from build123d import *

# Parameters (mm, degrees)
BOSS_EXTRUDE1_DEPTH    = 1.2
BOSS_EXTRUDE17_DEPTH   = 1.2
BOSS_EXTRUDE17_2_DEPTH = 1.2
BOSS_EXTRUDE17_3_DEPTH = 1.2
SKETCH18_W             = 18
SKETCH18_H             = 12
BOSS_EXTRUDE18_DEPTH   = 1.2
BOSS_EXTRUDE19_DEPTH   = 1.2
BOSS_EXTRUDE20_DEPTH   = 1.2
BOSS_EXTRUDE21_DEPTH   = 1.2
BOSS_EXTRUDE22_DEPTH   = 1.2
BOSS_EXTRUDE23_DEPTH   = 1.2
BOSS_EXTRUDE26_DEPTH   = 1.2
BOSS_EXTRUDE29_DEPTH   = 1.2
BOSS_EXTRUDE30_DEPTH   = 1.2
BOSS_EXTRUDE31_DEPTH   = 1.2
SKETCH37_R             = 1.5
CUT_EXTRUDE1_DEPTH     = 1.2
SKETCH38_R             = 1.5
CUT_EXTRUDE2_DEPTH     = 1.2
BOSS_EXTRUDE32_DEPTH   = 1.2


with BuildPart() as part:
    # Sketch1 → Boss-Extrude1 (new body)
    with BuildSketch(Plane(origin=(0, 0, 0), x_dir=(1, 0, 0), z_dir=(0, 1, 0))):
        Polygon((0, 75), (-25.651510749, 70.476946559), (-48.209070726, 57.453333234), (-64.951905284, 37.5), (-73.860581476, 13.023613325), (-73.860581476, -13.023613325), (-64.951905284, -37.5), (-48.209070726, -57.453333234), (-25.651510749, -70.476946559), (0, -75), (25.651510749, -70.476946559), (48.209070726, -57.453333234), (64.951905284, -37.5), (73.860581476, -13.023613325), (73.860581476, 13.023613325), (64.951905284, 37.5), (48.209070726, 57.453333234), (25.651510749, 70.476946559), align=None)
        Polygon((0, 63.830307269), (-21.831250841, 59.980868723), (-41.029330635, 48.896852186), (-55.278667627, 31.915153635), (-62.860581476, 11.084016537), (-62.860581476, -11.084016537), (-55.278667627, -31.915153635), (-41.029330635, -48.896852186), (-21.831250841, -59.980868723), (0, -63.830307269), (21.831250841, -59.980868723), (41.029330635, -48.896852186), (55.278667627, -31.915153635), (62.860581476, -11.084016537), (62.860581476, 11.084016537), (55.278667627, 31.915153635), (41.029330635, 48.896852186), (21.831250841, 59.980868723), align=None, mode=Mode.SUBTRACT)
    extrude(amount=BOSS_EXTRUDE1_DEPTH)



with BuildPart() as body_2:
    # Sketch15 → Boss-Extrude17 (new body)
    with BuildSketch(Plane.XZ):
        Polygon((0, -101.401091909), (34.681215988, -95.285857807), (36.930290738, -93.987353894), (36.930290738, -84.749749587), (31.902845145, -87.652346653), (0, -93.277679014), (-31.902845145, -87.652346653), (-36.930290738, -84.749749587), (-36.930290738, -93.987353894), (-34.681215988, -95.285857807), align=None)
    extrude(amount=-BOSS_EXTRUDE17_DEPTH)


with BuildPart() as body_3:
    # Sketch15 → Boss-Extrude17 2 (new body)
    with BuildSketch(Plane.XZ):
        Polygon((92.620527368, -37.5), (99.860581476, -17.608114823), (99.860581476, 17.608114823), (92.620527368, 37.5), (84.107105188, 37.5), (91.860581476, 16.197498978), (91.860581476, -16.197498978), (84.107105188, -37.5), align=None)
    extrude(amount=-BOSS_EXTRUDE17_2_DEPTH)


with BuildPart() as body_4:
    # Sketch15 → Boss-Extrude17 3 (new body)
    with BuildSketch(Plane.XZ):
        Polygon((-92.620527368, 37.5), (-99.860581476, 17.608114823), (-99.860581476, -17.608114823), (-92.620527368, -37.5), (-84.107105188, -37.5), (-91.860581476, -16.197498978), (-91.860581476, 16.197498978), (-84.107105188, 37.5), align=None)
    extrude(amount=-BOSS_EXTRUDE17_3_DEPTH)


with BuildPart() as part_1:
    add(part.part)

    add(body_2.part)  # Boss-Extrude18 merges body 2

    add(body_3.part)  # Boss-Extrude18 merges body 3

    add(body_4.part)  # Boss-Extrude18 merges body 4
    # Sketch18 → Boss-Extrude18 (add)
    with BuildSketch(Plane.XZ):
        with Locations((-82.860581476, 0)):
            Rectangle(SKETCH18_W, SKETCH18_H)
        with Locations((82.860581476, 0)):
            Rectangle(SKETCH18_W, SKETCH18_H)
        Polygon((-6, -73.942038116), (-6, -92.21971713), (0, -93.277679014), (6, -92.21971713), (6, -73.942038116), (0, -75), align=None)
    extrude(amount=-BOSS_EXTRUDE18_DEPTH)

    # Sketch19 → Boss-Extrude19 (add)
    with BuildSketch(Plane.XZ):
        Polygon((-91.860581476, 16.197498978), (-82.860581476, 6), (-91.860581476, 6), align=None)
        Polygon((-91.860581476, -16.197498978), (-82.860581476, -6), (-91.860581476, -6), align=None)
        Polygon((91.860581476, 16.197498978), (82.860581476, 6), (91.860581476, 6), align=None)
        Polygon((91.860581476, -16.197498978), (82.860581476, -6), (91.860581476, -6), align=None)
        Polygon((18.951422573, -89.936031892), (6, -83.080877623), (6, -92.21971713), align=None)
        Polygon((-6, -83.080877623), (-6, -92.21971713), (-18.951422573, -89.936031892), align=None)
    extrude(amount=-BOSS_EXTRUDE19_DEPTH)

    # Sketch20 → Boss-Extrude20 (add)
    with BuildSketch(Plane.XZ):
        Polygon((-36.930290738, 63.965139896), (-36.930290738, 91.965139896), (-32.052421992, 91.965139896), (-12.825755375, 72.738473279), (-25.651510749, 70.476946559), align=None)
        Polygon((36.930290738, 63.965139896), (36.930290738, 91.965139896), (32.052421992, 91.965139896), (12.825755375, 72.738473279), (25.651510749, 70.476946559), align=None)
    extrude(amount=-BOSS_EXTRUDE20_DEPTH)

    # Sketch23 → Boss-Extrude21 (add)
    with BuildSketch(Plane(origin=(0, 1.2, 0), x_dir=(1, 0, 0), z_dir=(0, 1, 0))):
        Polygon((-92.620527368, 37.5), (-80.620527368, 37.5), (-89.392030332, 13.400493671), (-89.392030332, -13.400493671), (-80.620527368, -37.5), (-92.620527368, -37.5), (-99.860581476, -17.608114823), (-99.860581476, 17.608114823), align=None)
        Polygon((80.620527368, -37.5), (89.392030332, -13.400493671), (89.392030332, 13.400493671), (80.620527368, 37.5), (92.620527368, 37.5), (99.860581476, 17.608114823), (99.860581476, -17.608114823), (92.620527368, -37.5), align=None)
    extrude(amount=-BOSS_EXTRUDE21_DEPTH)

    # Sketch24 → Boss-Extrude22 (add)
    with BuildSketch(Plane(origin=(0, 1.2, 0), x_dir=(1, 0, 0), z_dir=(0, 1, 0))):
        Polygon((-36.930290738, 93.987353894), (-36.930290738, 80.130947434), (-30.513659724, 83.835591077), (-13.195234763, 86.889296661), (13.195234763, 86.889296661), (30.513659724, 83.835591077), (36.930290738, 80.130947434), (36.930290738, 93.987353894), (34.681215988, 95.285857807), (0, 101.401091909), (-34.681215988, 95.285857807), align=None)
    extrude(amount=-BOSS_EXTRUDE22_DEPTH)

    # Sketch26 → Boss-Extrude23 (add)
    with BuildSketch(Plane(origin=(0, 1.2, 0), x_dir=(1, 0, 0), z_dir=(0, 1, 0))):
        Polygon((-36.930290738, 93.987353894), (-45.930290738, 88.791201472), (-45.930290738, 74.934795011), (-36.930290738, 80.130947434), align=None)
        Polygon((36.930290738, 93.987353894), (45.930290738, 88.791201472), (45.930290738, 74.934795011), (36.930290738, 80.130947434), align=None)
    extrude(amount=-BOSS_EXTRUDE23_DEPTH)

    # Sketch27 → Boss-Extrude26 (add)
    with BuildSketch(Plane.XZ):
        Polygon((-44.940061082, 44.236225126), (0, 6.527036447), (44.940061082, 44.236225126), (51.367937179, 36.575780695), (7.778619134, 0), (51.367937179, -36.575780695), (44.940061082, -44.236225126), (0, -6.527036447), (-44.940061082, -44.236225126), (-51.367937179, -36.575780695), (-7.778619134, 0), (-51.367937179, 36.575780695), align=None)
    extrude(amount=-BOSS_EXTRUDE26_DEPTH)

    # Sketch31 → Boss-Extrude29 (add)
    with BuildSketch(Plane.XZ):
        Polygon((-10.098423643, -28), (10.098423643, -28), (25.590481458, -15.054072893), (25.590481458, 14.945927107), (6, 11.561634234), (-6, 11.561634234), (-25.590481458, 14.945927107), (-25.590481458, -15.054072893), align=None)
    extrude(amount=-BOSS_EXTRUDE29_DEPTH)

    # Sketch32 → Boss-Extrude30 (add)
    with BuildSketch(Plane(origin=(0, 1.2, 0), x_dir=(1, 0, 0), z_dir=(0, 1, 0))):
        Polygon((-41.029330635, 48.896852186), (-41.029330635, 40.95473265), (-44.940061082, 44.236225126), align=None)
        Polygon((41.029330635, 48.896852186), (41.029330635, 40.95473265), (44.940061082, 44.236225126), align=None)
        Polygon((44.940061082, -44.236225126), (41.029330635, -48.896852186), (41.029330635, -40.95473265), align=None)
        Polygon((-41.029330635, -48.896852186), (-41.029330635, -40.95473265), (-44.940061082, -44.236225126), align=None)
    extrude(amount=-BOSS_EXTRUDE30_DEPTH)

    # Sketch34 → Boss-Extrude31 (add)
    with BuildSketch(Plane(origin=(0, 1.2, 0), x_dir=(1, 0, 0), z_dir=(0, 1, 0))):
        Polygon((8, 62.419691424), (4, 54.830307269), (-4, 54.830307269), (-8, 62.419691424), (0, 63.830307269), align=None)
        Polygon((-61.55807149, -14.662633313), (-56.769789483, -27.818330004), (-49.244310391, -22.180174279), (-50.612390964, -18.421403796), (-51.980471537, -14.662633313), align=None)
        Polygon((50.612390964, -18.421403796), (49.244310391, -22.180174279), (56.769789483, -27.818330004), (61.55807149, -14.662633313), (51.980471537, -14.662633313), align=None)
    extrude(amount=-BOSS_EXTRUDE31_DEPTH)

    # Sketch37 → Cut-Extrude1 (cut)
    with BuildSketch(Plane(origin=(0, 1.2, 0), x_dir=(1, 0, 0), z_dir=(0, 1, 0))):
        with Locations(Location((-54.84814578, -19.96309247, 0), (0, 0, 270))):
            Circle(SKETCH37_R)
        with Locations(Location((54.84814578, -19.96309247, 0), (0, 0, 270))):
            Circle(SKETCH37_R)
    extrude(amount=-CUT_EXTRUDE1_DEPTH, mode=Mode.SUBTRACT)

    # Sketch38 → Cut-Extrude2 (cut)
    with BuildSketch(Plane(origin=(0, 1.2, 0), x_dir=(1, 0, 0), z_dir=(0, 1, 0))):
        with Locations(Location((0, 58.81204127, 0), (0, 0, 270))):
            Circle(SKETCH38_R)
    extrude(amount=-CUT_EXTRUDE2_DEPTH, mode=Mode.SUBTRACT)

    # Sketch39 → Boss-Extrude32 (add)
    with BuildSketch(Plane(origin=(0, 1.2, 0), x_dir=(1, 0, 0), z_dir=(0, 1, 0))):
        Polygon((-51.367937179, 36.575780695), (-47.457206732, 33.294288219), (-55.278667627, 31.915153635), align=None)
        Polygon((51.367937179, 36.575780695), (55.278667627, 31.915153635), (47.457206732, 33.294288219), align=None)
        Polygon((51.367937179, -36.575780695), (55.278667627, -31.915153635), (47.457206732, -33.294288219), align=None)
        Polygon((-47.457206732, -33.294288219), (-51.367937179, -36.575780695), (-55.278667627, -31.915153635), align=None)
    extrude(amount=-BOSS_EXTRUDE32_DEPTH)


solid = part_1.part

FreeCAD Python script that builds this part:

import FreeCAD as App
import Part
import Sketcher
Q = App.Units.Quantity


def add_polygon(sketch, points):
    """Adds a closed chain of lines whose ends are joined by coincident constraints."""
    first, n = sketch.GeometryCount, len(points)
    for a, b in zip(points, points[1:] + points[:1]):
        sketch.addGeometry(Part.LineSegment(App.Vector(*a, 0), App.Vector(*b, 0)), False)
    for i in range(n):
        sketch.addConstraint(Sketcher.Constraint("Coincident", first + i, 2, first + (i + 1) % n, 1))

doc = App.newDocument("Part")
body = doc.addObject("PartDesign::Body", "Body")

# Sketch on XZ plane
sketch1 = body.newObject("Sketcher::SketchObject", "Sketch")
sketch1.AttachmentSupport = (doc.getObject("XZ_Plane"), [""])
sketch1.MapMode = "FlatFace"
add_polygon(sketch1, [(0, -75), (-26, -70), (-48, -57), (-65, -38), (-74, -13), (-74, 13), (-65, 38), (-48, 57), (-26, 70), (0, 75), (26, 70), (48, 57), (65, 38), (74, 13), (74, -13), (65, -38), (48, -57), (26, -70)])  # lines 0-17
add_polygon(sketch1, [(-22, -60), (0, -64), (22, -60), (41, -49), (55, -32), (63, -11), (63, 11), (55, 32), (41, 49), (22, 60), (0, 64), (-22, 60), (-41, 49), (-55, 32), (-63, 11), (-63, -11), (-55, -32), (-41, -49)])  # lines 18-35
sketch1.addConstraint([
    Sketcher.Constraint("Vertical", 4),
    Sketcher.Constraint("Vertical", 13),
    Sketcher.Constraint("Vertical", 23),
    Sketcher.Constraint("Vertical", 32),
    Sketcher.Constraint("Symmetric", 0, 2, 9, 2, -1, 1),
    Sketcher.Constraint("Symmetric", 1, 2, 10, 2, -1, 1),
    Sketcher.Constraint("Symmetric", 2, 2, 11, 2, -1, 1),
    Sketcher.Constraint("Symmetric", 3, 2, 12, 2, -1, 1),
    Sketcher.Constraint("Symmetric", 5, 2, 14, 2, -1, 1),
    Sketcher.Constraint("Symmetric", 6, 2, 15, 2, -1, 1),
    Sketcher.Constraint("Symmetric", 7, 2, 16, 2, -1, 1),
    Sketcher.Constraint("Symmetric", 8, 2, 17, 2, -1, 1),
    Sketcher.Constraint("Symmetric", 18, 2, 27, 2, -1, 1),
    Sketcher.Constraint("Symmetric", 19, 2, 28, 2, -1, 1),
    Sketcher.Constraint("Symmetric", 20, 2, 29, 2, -1, 1),
    Sketcher.Constraint("Symmetric", 21, 2, 30, 2, -1, 1),
    Sketcher.Constraint("Symmetric", 22, 2, 31, 2, -1, 1),
    Sketcher.Constraint("Symmetric", 24, 2, 33, 2, -1, 1),
    Sketcher.Constraint("Symmetric", 25, 2, 34, 2, -1, 1),
    Sketcher.Constraint("Symmetric", 26, 2, 35, 2, -1, 1),
    Sketcher.Constraint("Symmetric", 7, 2, 9, 2, -2),
    Sketcher.Constraint("Symmetric", 6, 2, 10, 2, -2),
    Sketcher.Constraint("Symmetric", 5, 2, 11, 2, -2),
    Sketcher.Constraint("Symmetric", 26, 2, 28, 2, -2),
    Sketcher.Constraint("Symmetric", 25, 2, 29, 2, -2),
    Sketcher.Constraint("Symmetric", 24, 2, 30, 2, -2),
    Sketcher.Constraint("PointOnObject", 8, 2, -2),
    Sketcher.Constraint("PointOnObject", 18, 2, -2),
    Sketcher.Constraint("Parallel", 5, 14),
    Sketcher.Constraint("Parallel", 9, 18),
    Sketcher.Constraint("Parallel", 16, 20),
    Sketcher.Constraint("Parallel", 15, 21),
    Sketcher.Constraint("Parallel", 14, 22),
    Sketcher.Constraint("Parallel", 12, 24),
    Sketcher.Constraint("Parallel", 24, 33),
    Sketcher.Constraint("Horizontal", 4, 2, 12, 2),
    Sketcher.Constraint("Equal", 0, 1),
    Sketcher.Constraint("Equal", 1, 2),
    Sketcher.Constraint("Equal", 2, 3),
    Sketcher.Constraint("Equal", 19, 20),
    Sketcher.Constraint("Equal", 20, 21),
    Sketcher.Constraint("Equal", 21, 22),
    Sketcher.Constraint("Angle", 0, Q("170 deg")),
    Sketcher.Constraint("Angle", 1, Q("150 deg")),
    Sketcher.Constraint("Angle", 2, Q("130 deg")),
    Sketcher.Constraint("Angle", 3, Q("110 deg")),
    Sketcher.Constraint("DistanceY", -1, 1, 8, 2, Q("75 mm")),
    Sketcher.Constraint("DistanceY", 2, 2, 5, 2, Q("75 mm")),
    Sketcher.Constraint("DistanceX", 22, 2, 13, 2, Q("11 mm")),
    Sketcher.Constraint("DistanceY", 23, 1, 23, 2, Q("22.168033 mm")),
])
pad1 = body.newObject("PartDesign::Pad", "Pad")
pad1.Profile = sketch1
pad1.Length = 1.2
pad1.Reversed = True
body2 = doc.addObject("PartDesign::Body", "Body001")

# Sketch on XZ plane
sketch2 = body2.newObject("Sketcher::SketchObject", "Sketch001")
sketch2.AttachmentSupport = (doc.getObject("XZ_Plane001"), [""])
sketch2.MapMode = "FlatFace"
add_polygon(sketch2, [(0, -101.4), (34.7, -95.3), (36.9, -94), (36.9, -84.7), (31.9, -87.7), (0, -93.3), (-31.9, -87.7), (-36.9, -84.7), (-36.9, -94), (-34.7, -95.3)])  # lines 0-9
sketch2.addConstraint([
    Sketcher.Constraint("Vertical", 2),
    Sketcher.Constraint("Vertical", 7),
    Sketcher.Constraint("Symmetric", 3, 2, 5, 2, -2),
    Sketcher.Constraint("Symmetric", 2, 2, 6, 2, -2),
    Sketcher.Constraint("Symmetric", 0, 2, 8, 2, -2),
    Sketcher.Constraint("PointOnObject", 4, 2, -2),
    Sketcher.Constraint("PointOnObject", 9, 2, -2),
    Sketcher.Constraint("Parallel", 1, 3),
    Sketcher.Constraint("Parallel", 0, 4),
    Sketcher.Constraint("Parallel", 6, 8),
    Sketcher.Constraint("Angle", 0, Q("10 deg")),
    Sketcher.Constraint("Angle", 1, Q("30 deg")),
    Sketcher.Constraint("Distance", 0, Q("35.21623 mm")),
    Sketcher.Constraint("DistanceY", 2, 1, 2, 2, Q("9.237604 mm")),
    Sketcher.Constraint("DistanceX", -1, 1, 1, 2, Q("36.930291 mm")),
    Sketcher.Constraint("DistanceY", 2, 2, -1, 1, Q("84.74975 mm")),
    Sketcher.Constraint("DistanceY", 4, 2, -1, 1, Q("93.277679 mm")),
])
pad2 = body2.newObject("PartDesign::Pad", "Pad001")
pad2.Profile = sketch2
pad2.Length = 1.2
pad2.Reversed = True
body3 = doc.addObject("PartDesign::Body", "Body002")

# Sketch on XZ plane
sketch3 = body3.newObject("Sketcher::SketchObject", "Sketch002")
sketch3.AttachmentSupport = (doc.getObject("XZ_Plane002"), [""])
sketch3.MapMode = "FlatFace"
add_polygon(sketch3, [(93, -38), (100, -18), (100, 18), (93, 38), (84, 38), (92, 16), (92, -16), (84, -38)])  # lines 0-7
sketch3.addConstraint([
    Sketcher.Constraint("Vertical", 1),
    Sketcher.Constraint("Horizontal", 3),
    Sketcher.Constraint("Vertical", 5),
    Sketcher.Constraint("Horizontal", 7),
    Sketcher.Constraint("Symmetric", 3, 2, 6, 2, -1),
    Sketcher.Constraint("Parallel", 2, 4),
    Sketcher.Constraint("Parallel", 0, 6),
    Sketcher.Constraint("Vertical", 2, 2, 7, 2),
    Sketcher.Constraint("Equal", 0, 2),
    Sketcher.Constraint("Angle", 0, Q("70 deg")),
    Sketcher.Constraint("DistanceX", 4, 2, 1, 2, Q("8 mm")),
    Sketcher.Constraint("DistanceY", 6, 2, 3, 2, Q("75 mm")),
    Sketcher.Constraint("DistanceY", 1, 1, 1, 2, Q("35.21623 mm")),
    Sketcher.Constraint("DistanceY", -1, 1, 4, 2, Q("16.197499 mm")),
    Sketcher.Constraint("DistanceX", -1, 1, 0, 2, Q("99.860581 mm")),
])
pad3 = body3.newObject("PartDesign::Pad", "Pad002")
pad3.Profile = sketch3
pad3.Length = 1.2
pad3.Reversed = True
body4 = doc.addObject("PartDesign::Body", "Body003")

# Sketch on XZ plane
sketch4 = body4.newObject("Sketcher::SketchObject", "Sketch003")
sketch4.AttachmentSupport = (doc.getObject("XZ_Plane003"), [""])
sketch4.MapMode = "FlatFace"
add_polygon(sketch4, [(-93, 38), (-100, 18), (-100, -18), (-93, -38), (-84, -38), (-92, -16), (-92, 16), (-84, 38)])  # lines 0-7
sketch4.addConstraint([
    Sketcher.Constraint("Vertical", 1),
    Sketcher.Constraint("Horizontal", 3),
    Sketcher.Constraint("Vertical", 5),
    Sketcher.Constraint("Horizontal", 7),
    Sketcher.Constraint("Symmetric", 3, 2, 6, 2, -1),
    Sketcher.Constraint("Parallel", 2, 4),
    Sketcher.Constraint("Parallel", 0, 6),
    Sketcher.Constraint("Vertical", 2, 2, 7, 2),
    Sketcher.Constraint("Equal", 0, 2),
    Sketcher.Constraint("Angle", 0, Q("-110 deg")),
    Sketcher.Constraint("DistanceX", 1, 2, 4, 2, Q("8 mm")),
    Sketcher.Constraint("DistanceY", 3, 2, 6, 2, Q("75 mm")),
    Sketcher.Constraint("DistanceY", 1, 2, 1, 1, Q("35.21623 mm")),
    Sketcher.Constraint("DistanceY", 4, 2, -1, 1, Q("16.197499 mm")),
    Sketcher.Constraint("DistanceX", 0, 2, -1, 1, Q("99.860581 mm")),
])
pad4 = body4.newObject("PartDesign::Pad", "Pad003")
pad4.Profile = sketch4
pad4.Length = 1.2
pad4.Reversed = True
body.AllowCompound = True
doc.recompute()

boolean = body.newObject("PartDesign::Boolean", "Boolean")
boolean.Type = "Fuse"
boolean.addObjects([body2])
doc.recompute()

boolean2 = body.newObject("PartDesign::Boolean", "Boolean001")
boolean2.Type = "Fuse"
boolean2.addObjects([body3])
doc.recompute()

boolean3 = body.newObject("PartDesign::Boolean", "Boolean002")
boolean3.Type = "Fuse"
boolean3.addObjects([body4])

# Sketch on XZ plane
sketch5 = body.newObject("Sketcher::SketchObject", "Sketch004")
sketch5.AttachmentSupport = (doc.getObject("XZ_Plane"), [""])
sketch5.MapMode = "FlatFace"
add_polygon(sketch5, [(-92, 6), (-92, -6), (-74, -6), (-74, 6)])  # lines 0-3
add_polygon(sketch5, [(74, 6), (74, -6), (92, -6), (92, 6)])  # lines 4-7
add_polygon(sketch5, [(-6, -74), (-6, -92), (0, -93), (6, -92), (6, -74), (0, -75)])  # lines 8-13
sketch5.addConstraint([
    Sketcher.Constraint("Vertical", 0),
    Sketcher.Constraint("Horizontal", 1),
    Sketcher.Constraint("Vertical", 2),
    Sketcher.Constraint("Horizontal", 3),
    Sketcher.Constraint("Vertical", 4),
    Sketcher.Constraint("Horizontal", 5),
    Sketcher.Constraint("Vertical", 6),
    Sketcher.Constraint("Horizontal", 7),
    Sketcher.Constraint("Vertical", 8),
    Sketcher.Constraint("Vertical", 11),
    Sketcher.Constraint("Symmetric", 2, 2, 4, 2, -1, 1),
    Sketcher.Constraint("Symmetric", 0, 2, 6, 2, -1, 1),
    Sketcher.Constraint("Symmetric", 8, 2, 10, 2, -2),
    Sketcher.Constraint("PointOnObject", 9, 2, -2),
    Sketcher.Constraint("PointOnObject", 12, 2, -2),
    Sketcher.Constraint("Parallel", 10, 12),
    Sketcher.Constraint("Parallel", 9, 13),
    Sketcher.Constraint("Horizontal", 1, 2, 4, 2),
    Sketcher.Constraint("DistanceX", 1, 1, 1, 2, Q("18 mm")),
    Sketcher.Constraint("DistanceY", 0, 2, 0, 1, Q("12 mm")),
    Sketcher.Constraint("Angle", 9, Q("-10 deg")),
    Sketcher.Constraint("DistanceX", 8, 2, -1, 1, Q("6 mm")),
    Sketcher.Constraint("DistanceY", 12, 2, -1, 1, Q("75 mm")),
    Sketcher.Constraint("DistanceY", 8, 2, 8, 1, Q("18.277679 mm")),
    Sketcher.Constraint("DistanceX", 0, 2, -1, 1, Q("91.860581 mm")),
])
pad5 = body.newObject("PartDesign::Pad", "Pad004")
pad5.Profile = sketch5
pad5.Length = 1.2
pad5.Reversed = True

# Sketch on XZ plane
sketch6 = body.newObject("Sketcher::SketchObject", "Sketch005")
sketch6.AttachmentSupport = (doc.getObject("XZ_Plane"), [""])
sketch6.MapMode = "FlatFace"
add_polygon(sketch6, [(-83, 6), (-92, 16), (-92, 6)])  # lines 0-2
add_polygon(sketch6, [(-92, -16), (-83, -6), (-92, -6)])  # lines 3-5
add_polygon(sketch6, [(92, 16), (83, 6), (92, 6)])  # lines 6-8
add_polygon(sketch6, [(83, -6), (92, -16), (92, -6)])  # lines 9-11
add_polygon(sketch6, [(19, -90), (6, -83), (6, -92)])  # lines 12-14
add_polygon(sketch6, [(-6, -92), (-6, -83), (-19, -90)])  # lines 15-17
sketch6.addConstraint([
    Sketcher.Constraint("Vertical", 1),
    Sketcher.Constraint("Horizontal", 2),
    Sketcher.Constraint("Horizontal", 4),
    Sketcher.Constraint("Vertical", 5),
    Sketcher.Constraint("Horizontal", 7),
    Sketcher.Constraint("Vertical", 8),
    Sketcher.Constraint("Vertical", 10),
    Sketcher.Constraint("Horizontal", 11),
    Sketcher.Constraint("Vertical", 13),
    Sketcher.Constraint("Vertical", 15),
    Sketcher.Constraint("Symmetric", 3, 2, 6, 2, -1, 1),
    Sketcher.Constraint("Symmetric", 5, 2, 8, 2, -1, 1),
    Sketcher.Constraint("Symmetric", 0, 2, 9, 2, -1, 1),
    Sketcher.Constraint("Symmetric", 2, 2, 11, 2, -1, 1),
    Sketcher.Constraint("Symmetric", 2, 2, 6, 2, -2),
    Sketcher.Constraint("Symmetric", 0, 2, 8, 2, -2),
    Sketcher.Constraint("Symmetric", 12, 2, 15, 2, -2),
    Sketcher.Constraint("Symmetric", 14, 2, 16, 2, -2),
    Sketcher.Constraint("Horizontal", 13, 2, 17, 2),
    Sketcher.Constraint("DistanceX", 2, 1, 2, 2, Q("9 mm")),
    Sketcher.Constraint("Angle", 14, Q("10 deg")),
    Sketcher.Constraint("DistanceY", -1, 1, 1, 2, Q("6 mm")),
    Sketcher.Constraint("DistanceX", -1, 1, 12, 2, Q("6 mm")),
    Sketcher.Constraint("DistanceY", 1, 2, 1, 1, Q("10.197499 mm")),
    Sketcher.Constraint("DistanceY", 13, 2, 13, 1, Q("9.13884 mm")),
    Sketcher.Constraint("Distance", 14, Q("13.151219 mm")),
    Sketcher.Constraint("DistanceX", 0, 2, -1, 1, Q("91.860581 mm")),
    Sketcher.Constraint("DistanceY", 14, 2, -1, 1, Q("89.936032 mm")),
])
pad6 = body.newObject("PartDesign::Pad", "Pad005")
pad6.Profile = sketch6
pad6.Length = 1.2
pad6.Reversed = True

# Sketch on XZ plane
sketch7 = body.newObject("Sketcher::SketchObject", "Sketch006")
sketch7.AttachmentSupport = (doc.getObject("XZ_Plane"), [""])
sketch7.MapMode = "FlatFace"
add_polygon(sketch7, [(-36.9, 92), (-36.9, 64), (-25.7, 70.5), (-12.8, 72.7), (-32.1, 92)])  # lines 0-4
add_polygon(sketch7, [(36.9, 64), (36.9, 92), (32.1, 92), (12.8, 72.7), (25.7, 70.5)])  # lines 5-9
sketch7.addConstraint([
    Sketcher.Constraint("Vertical", 0),
    Sketcher.Constraint("Horizontal", 4),
    Sketcher.Constraint("Vertical", 5),
    Sketcher.Constraint("Horizontal", 6),
    Sketcher.Constraint("Symmetric", 4, 2, 5, 2, -2),
    Sketcher.Constraint("Symmetric", 2, 2, 7, 2, -2),
    Sketcher.Constraint("Symmetric", 1, 2, 8, 2, -2),
    Sketcher.Constraint("Perpendicular", 3, 7),
    Sketcher.Constraint("Horizontal", 0, 2, 9, 2),
    Sketcher.Constraint("Equal", 4, 6),
    Sketcher.Constraint("Equal", 1, 2),
    Sketcher.Constraint("DistanceY", 0, 2, 0, 1, Q("28 mm")),
    Sketcher.Constraint("Angle", 1, Q("30 deg")),
    Sketcher.Constraint("Angle", 2, Q("10 deg")),
    Sketcher.Constraint("DistanceX", 4, 2, 4, 1, Q("4.877869 mm")),
    Sketcher.Constraint("DistanceX", 1, 2, 5, 2, Q("62.581801 mm")),
    Sketcher.Constraint("DistanceY", -1, 1, 0, 2, Q("63.96514 mm")),
])
pad7 = body.newObject("PartDesign::Pad", "Pad006")
pad7.Profile = sketch7
pad7.Length = 1.2
pad7.Reversed = True

# Sketch on XZ plane
sketch8 = body.newObject("Sketcher::SketchObject", "Sketch007")
sketch8.AttachmentSupport = (doc.getObject("XZ_Plane"), [""])
sketch8.MapMode = "FlatFace"
sketch8.AttachmentOffset = App.Placement(App.Vector(0, 0, -1.2), App.Rotation())
add_polygon(sketch8, [(-81, -38), (-93, -38), (-100, -18), (-100, 18), (-93, 38), (-81, 38), (-89, 13), (-89, -13)])  # lines 0-7
add_polygon(sketch8, [(89, 13), (81, 38), (93, 38), (100, 18), (100, -18), (93, -38), (81, -38), (89, -13)])  # lines 8-15
sketch8.addConstraint([
    Sketcher.Constraint("Horizontal", 0),
    Sketcher.Constraint("Vertical", 2),
    Sketcher.Constraint("Horizontal", 4),
    Sketcher.Constraint("Vertical", 6),
    Sketcher.Constraint("Horizontal", 9),
    Sketcher.Constraint("Vertical", 11),
    Sketcher.Constraint("Horizontal", 13),
    Sketcher.Constraint("Vertical", 15),
    Sketcher.Constraint("Symmetric", 7, 2, 8, 2, -1, 1),
    Sketcher.Constraint("Symmetric", 1, 2, 10, 2, -1, 1),
    Sketcher.Constraint("Symmetric", 3, 2, 12, 2, -1, 1),
    Sketcher.Constraint("Symmetric", 5, 2, 14, 2, -1, 1),
    Sketcher.Constraint("Symmetric", 4, 2, 8, 2, -2),
    Sketcher.Constraint("Parallel", 3, 5),
    Sketcher.Constraint("Parallel", 1, 7),
    Sketcher.Constraint("Parallel", 7, 8),
    Sketcher.Constraint("Parallel", 8, 10),
    Sketcher.Constraint("Parallel", 5, 12),
    Sketcher.Constraint("Parallel", 12, 14),
    Sketcher.Constraint("Horizontal", 2, 2, 10, 2),
    Sketcher.Constraint("Horizontal", 6, 2, 14, 2),
    Sketcher.Constraint("DistanceX", 0, 2, 0, 1, Q("12 mm")),
    Sketcher.Constraint("Angle", 1, Q("110 deg")),
    Sketcher.Constraint("DistanceY", 0, 2, 3, 2, Q("75 mm")),
    Sketcher.Constraint("DistanceY", 2, 1, 2, 2, Q("35.21623 mm")),
    Sketcher.Constraint("Distance", 5, Q("25.646159 mm")),
    Sketcher.Constraint("DistanceX", 1, 2, -1, 1, Q("99.860581 mm")),
])
pad8 = body.newObject("PartDesign::Pad", "Pad007")
pad8.Profile = sketch8
pad8.Length = 1.2

# Sketch on XZ plane
sketch9 = body.newObject("Sketcher::SketchObject", "Sketch008")
sketch9.AttachmentSupport = (doc.getObject("XZ_Plane"), [""])
sketch9.MapMode = "FlatFace"
sketch9.AttachmentOffset = App.Placement(App.Vector(0, 0, -1.2), App.Rotation())
add_polygon(sketch9, [(-36.9, -94), (-36.9, -80.1), (-30.5, -83.8), (-13.2, -86.9), (13.2, -86.9), (30.5, -83.8), (36.9, -80.1), (36.9, -94), (34.7, -95.3), (0, -101.4), (-34.7, -95.3)])  # lines 0-10
sketch9.addConstraint([
    Sketcher.Constraint("Vertical", 0),
    Sketcher.Constraint("Horizontal", 3),
    Sketcher.Constraint("Vertical", 6),
    Sketcher.Constraint("Symmetric", 1, 2, 4, 2, -2),
    Sketcher.Constraint("Symmetric", 0, 2, 5, 2, -2),
    Sketcher.Constraint("Symmetric", 7, 2, 9, 2, -2),
    Sketcher.Constraint("PointOnObject", 8, 2, -2),
    Sketcher.Constraint("Parallel", 5, 7),
    Sketcher.Constraint("Parallel", 4, 8),
    Sketcher.Constraint("Parallel", 2, 9),
    Sketcher.Constraint("Parallel", 1, 10),
    Sketcher.Constraint("Angle", 1, Q("-30 deg")),
    Sketcher.Constraint("Angle", 2, Q("-10 deg")),
    Sketcher.Constraint("DistanceX", 3, 1, 3, 2, Q("26.39047 mm")),
    Sketcher.Constraint("DistanceY", 8, 2, 1, 2, Q("17.565501 mm")),
    Sketcher.Constraint("Distance", 2, Q("17.58559 mm")),
    Sketcher.Constraint("Distance", 8, Q("35.21623 mm")),
    Sketcher.Constraint("DistanceX", 0, 2, -1, 1, Q("36.930291 mm")),
    Sketcher.Constraint("DistanceY", 1, 2, -1, 1, Q("83.835591 mm")),
])
pad9 = body.newObject("PartDesign::Pad", "Pad008")
pad9.Profile = sketch9
pad9.Length = 1.2

# Sketch on XZ plane
sketch10 = body.newObject("Sketcher::SketchObject", "Sketch009")
sketch10.AttachmentSupport = (doc.getObject("XZ_Plane"), [""])
sketch10.MapMode = "FlatFace"
sketch10.AttachmentOffset = App.Placement(App.Vector(0, 0, -1.2), App.Rotation())
add_polygon(sketch10, [(-37, -94), (-46, -89), (-46, -75), (-37, -80)])  # lines 0-3
add_polygon(sketch10, [(46, -89), (37, -94), (37, -80), (46, -75)])  # lines 4-7
sketch10.addConstraint([
    Sketcher.Constraint("Vertical", 1),
    Sketcher.Constraint("Vertical", 3),
    Sketcher.Constraint("Vertical", 5),
    Sketcher.Constraint("Vertical", 7),
    Sketcher.Constraint("Symmetric", 3, 2, 4, 2, -2),
    Sketcher.Constraint("Symmetric", 1, 2, 6, 2, -2),
    Sketcher.Constraint("Parallel", 0, 2),
    Sketcher.Constraint("Parallel", 4, 6),
    Sketcher.Constraint("Horizontal", 2, 2, 5, 2),
    Sketcher.Constraint("Angle", 0, Q("150 deg")),
    Sketcher.Constraint("DistanceX", 1, 2, 2, 2, Q("9 mm")),
    Sketcher.Constraint("DistanceY", 0, 2, -1, 1, Q("88.791201 mm")),
    Sketcher.Constraint("DistanceY", 1, 1, 1, 2, Q("13.856406 mm")),
    Sketcher.Constraint("DistanceX", 0, 2, -1, 1, Q("45.930291 mm")),
])
pad10 = body.newObject("PartDesign::Pad", "Pad009")
pad10.Profile = sketch10
pad10.Length = 1.2

# Sketch on XZ plane
sketch11 = body.newObject("Sketcher::SketchObject", "Sketch010")
sketch11.AttachmentSupport = (doc.getObject("XZ_Plane"), [""])
sketch11.MapMode = "FlatFace"
add_polygon(sketch11, [(0, 7), (-45, 44), (-51, 37), (-8, 0), (-51, -37), (-45, -44), (0, -7), (45, -44), (51, -37), (8, 0), (51, 37), (45, 44)])  # lines 0-11
sketch11.addConstraint([
    Sketcher.Constraint("Symmetric", 0, 2, 6, 2, -1, 1),
    Sketcher.Constraint("Symmetric", 1, 2, 7, 2, -1, 1),
    Sketcher.Constraint("Symmetric", 2, 2, 8, 2, -1, 1),
    Sketcher.Constraint("Symmetric", 3, 2, 9, 2, -1, 1),
    Sketcher.Constraint("Symmetric", 4, 2, 10, 2, -1, 1),
    Sketcher.Constraint("Symmetric", 5, 2, 11, 2, -1, 1),
    Sketcher.Constraint("Symmetric", 4, 2, 6, 2, -2),
    Sketcher.Constraint("Symmetric", 3, 2, 7, 2, -2),
    Sketcher.Constraint("PointOnObject", 2, 2, -1),
    Sketcher.Constraint("PointOnObject", 5, 2, -2),
    Sketcher.Constraint("Perpendicular", 0, 1),
    Sketcher.Constraint("Perpendicular", 1, 2),
    Sketcher.Constraint("Angle", 0, Q("140 deg")),
    Sketcher.Constraint("Distance", 1, Q("10 mm")),
    Sketcher.Constraint("DistanceX", 3, 2, 6, 2, Q("96.307998 mm")),
    Sketcher.Constraint("DistanceY", -1, 1, 1, 2, Q("36.575781 mm")),
])
pad11 = body.newObject("PartDesign::Pad", "Pad010")
pad11.Profile = sketch11
pad11.Length = 1.2
pad11.Reversed = True

# Sketch on XZ plane
sketch12 = body.newObject("Sketcher::SketchObject", "Sketch011")
sketch12.AttachmentSupport = (doc.getObject("XZ_Plane"), [""])
sketch12.MapMode = "FlatFace"
add_polygon(sketch12, [(-10, -28), (10, -28), (26, -15), (26, 15), (6, 12), (-6, 12), (-26, 15), (-26, -15)])  # lines 0-7
sketch12.addConstraint([
    Sketcher.Constraint("Horizontal", 0),
    Sketcher.Constraint("Vertical", 2),
    Sketcher.Constraint("Horizontal", 4),
    Sketcher.Constraint("Vertical", 6),
    Sketcher.Constraint("Symmetric", 2, 2, 5, 2, -2),
    Sketcher.Constraint("Horizontal", 1, 2, 6, 2),
    Sketcher.Constraint("Equal", 3, 5),
    Sketcher.Constraint("Equal", 1, 7),
    Sketcher.Constraint("DistanceX", 4, 2, 4, 1, Q("12 mm")),
    Sketcher.Constraint("DistanceY", 2, 1, 2, 2, Q("30 mm")),
    Sketcher.Constraint("DistanceY", 0, 2, -1, 1, Q("28 mm")),
    Sketcher.Constraint("DistanceX", 0, 1, 0, 2, Q("20.196847 mm")),
    Sketcher.Constraint("DistanceX", -1, 1, 1, 2, Q("25.590481 mm")),
    Sketcher.Constraint("Distance", 1, Q("20.189128 mm")),
    Sketcher.Constraint("Distance", 3, Q("19.880654 mm")),
])
pad12 = body.newObject("PartDesign::Pad", "Pad011")
pad12.Profile = sketch12
pad12.Length = 1.2
pad12.Reversed = True

# Sketch on XZ plane
sketch13 = body.newObject("Sketcher::SketchObject", "Sketch012")
sketch13.AttachmentSupport = (doc.getObject("XZ_Plane"), [""])
sketch13.MapMode = "FlatFace"
sketch13.AttachmentOffset = App.Placement(App.Vector(0, 0, -1.2), App.Rotation())
add_polygon(sketch13, [(-41, -41), (-41, -49), (-45, -44)])  # lines 0-2
add_polygon(sketch13, [(41, -49), (41, -41), (45, -44)])  # lines 3-5
add_polygon(sketch13, [(41, 49), (45, 44), (41, 41)])  # lines 6-8
add_polygon(sketch13, [(-41, 49), (-41, 41), (-45, 44)])  # lines 9-11
sketch13.addConstraint([
    Sketcher.Constraint("Vertical", 0),
    Sketcher.Constraint("Vertical", 3),
    Sketcher.Constraint("Vertical", 8),
    Sketcher.Constraint("Vertical", 9),
    Sketcher.Constraint("Symmetric", 1, 2, 6, 2, -1, 1),
    Sketcher.Constraint("Symmetric", 2, 2, 7, 2, -1, 1),
    Sketcher.Constraint("Symmetric", 3, 2, 9, 2, -1, 1),
    Sketcher.Constraint("Symmetric", 4, 2, 10, 2, -1, 1),
    Sketcher.Constraint("Symmetric", 2, 2, 3, 2, -2),
    Sketcher.Constraint("Symmetric", 1, 2, 4, 2, -2),
    Sketcher.Constraint("Perpendicular", 1, 2),
    Sketcher.Constraint("Perpendicular", 4, 5),
    Sketcher.Constraint("Perpendicular", 2, 6),
    Sketcher.Constraint("Perpendicular", 10, 11),
    Sketcher.Constraint("Angle", 1, Q("130 deg")),
    Sketcher.Constraint("DistanceY", 0, 2, 0, 1, Q("7.94212 mm")),
    Sketcher.Constraint("DistanceX", 0, 2, -1, 1, Q("41.029331 mm")),
    Sketcher.Constraint("DistanceY", 4, 2, 6, 2, Q("88.47245 mm")),
])
pad13 = body.newObject("PartDesign::Pad", "Pad012")
pad13.Profile = sketch13
pad13.Length = 1.2

# Sketch on XZ plane
sketch14 = body.newObject("Sketcher::SketchObject", "Sketch013")
sketch14.AttachmentSupport = (doc.getObject("XZ_Plane"), [""])
sketch14.MapMode = "FlatFace"
sketch14.AttachmentOffset = App.Placement(App.Vector(0, 0, -1.2), App.Rotation())
add_polygon(sketch14, [(4, -55), (8, -62), (0, -64), (-8, -62), (-4, -55)])  # lines 0-4
add_polygon(sketch14, [(-62, 15), (-57, 28), (-49, 22), (-52, 15)])  # lines 5-8
add_polygon(sketch14, [(49, 22), (57, 28), (62, 15), (52, 15)])  # lines 9-12
sketch14.addConstraint([
    Sketcher.Constraint("Horizontal", 4),
    Sketcher.Constraint("Horizontal", 8),
    Sketcher.Constraint("Horizontal", 11),
    Sketcher.Constraint("Symmetric", 0, 2, 2, 2, -2),
    Sketcher.Constraint("Symmetric", 5, 2, 9, 2, -2),
    Sketcher.Constraint("Symmetric", 8, 2, 10, 2, -2),
    Sketcher.Constraint("Symmetric", 6, 2, 12, 2, -2),
    Sketcher.Constraint("PointOnObject", 1, 2, -2),
    Sketcher.Constraint("Parallel", 5, 7),
    Sketcher.Constraint("Parallel", 10, 12),
    Sketcher.Constraint("Equal", 0, 3),
    Sketcher.Constraint("DistanceX", 4, 1, 4, 2, Q("8 mm")),
    Sketcher.Constraint("Angle", 1, Q("-170 deg")),
    Sketcher.Constraint("Angle", 5, Q("70 deg")),
    Sketcher.Constraint("Distance", 5, Q("14 mm")),
    Sketcher.Constraint("Distance", 7, Q("8 mm")),
    Sketcher.Constraint("DistanceX", -1, 1, 0, 2, Q("8 mm")),
    Sketcher.Constraint("DistanceY", 1, 2, 3, 2, Q("9 mm")),
    Sketcher.Constraint("DistanceX", 8, 2, 8, 1, Q("9.5776 mm")),
    Sketcher.Constraint("DistanceX", 6, 2, 9, 2, Q("106.0141 mm")),
    Sketcher.Constraint("DistanceY", 0, 2, -1, 1, Q("62.419691 mm")),
    Sketcher.Constraint("DistanceY", -1, 1, 5, 2, Q("27.81833 mm")),
])
pad14 = body.newObject("PartDesign::Pad", "Pad013")
pad14.Profile = sketch14
pad14.Length = 1.2

# Sketch on XZ plane
sketch15 = body.newObject("Sketcher::SketchObject", "Sketch014")
sketch15.AttachmentSupport = (doc.getObject("XZ_Plane"), [""])
sketch15.MapMode = "FlatFace"
sketch15.AttachmentOffset = App.Placement(App.Vector(0, 0, -1.2), App.Rotation())
sketch15.addGeometry([
    Part.Circle(App.Vector(-54.8, 20, 0), App.Vector(0, 0, 1), 1.5),
    Part.Circle(App.Vector(54.8, 20, 0), App.Vector(0, 0, 1), 1.5),
], False)
sketch15.addConstraint([
    Sketcher.Constraint("Equal", 0, 1),
    Sketcher.Constraint("Symmetric", 0, 3, 1, 3, -2),
    Sketcher.Constraint("Diameter", 0, Q("3 mm")),
    Sketcher.Constraint("DistanceX", 0, 3, 1, 3, Q("109.696292 mm")),
    Sketcher.Constraint("DistanceY", -1, 1, 0, 3, Q("19.963092 mm")),
])
pocket1 = body.newObject("PartDesign::Pocket", "Pocket")
pocket1.Profile = sketch15
pocket1.Length = 1.2
pocket1.Reversed = True

# Sketch on XZ plane
sketch16 = body.newObject("Sketcher::SketchObject", "Sketch015")
sketch16.AttachmentSupport = (doc.getObject("XZ_Plane"), [""])
sketch16.MapMode = "FlatFace"
sketch16.AttachmentOffset = App.Placement(App.Vector(0, 0, -1.2), App.Rotation())
sketch16.addGeometry(Part.Circle(App.Vector(0, -58.8, 0), App.Vector(0, 0, 1), 1.5), False)
sketch16.addConstraint([
    Sketcher.Constraint("PointOnObject", 0, 3, -2),
    Sketcher.Constraint("Diameter", 0, Q("3 mm")),
    Sketcher.Constraint("DistanceY", 0, 3, -1, 1, Q("58.812041 mm")),
])
pocket2 = body.newObject("PartDesign::Pocket", "Pocket001")
pocket2.Profile = sketch16
pocket2.Length = 1.2
pocket2.Reversed = True

# Sketch on XZ plane
sketch17 = body.newObject("Sketcher::SketchObject", "Sketch016")
sketch17.AttachmentSupport = (doc.getObject("XZ_Plane"), [""])
sketch17.MapMode = "FlatFace"
sketch17.AttachmentOffset = App.Placement(App.Vector(0, 0, -1.2), App.Rotation())
add_polygon(sketch17, [(-47, -33), (-51, -37), (-55, -32)])  # lines 0-2
add_polygon(sketch17, [(55, -32), (51, -37), (47, -33)])  # lines 3-5
add_polygon(sketch17, [(51, 37), (55, 32), (47, 33)])  # lines 6-8
add_polygon(sketch17, [(-51, 37), (-47, 33), (-55, 32)])  # lines 9-11
sketch17.addConstraint([
    Sketcher.Constraint("Symmetric", 1, 2, 6, 2, -1, 1),
    Sketcher.Constraint("Symmetric", 2, 2, 7, 2, -1, 1),
    Sketcher.Constraint("Symmetric", 0, 2, 8, 2, -1, 1),
    Sketcher.Constraint("Symmetric", 4, 2, 9, 2, -1, 1),
    Sketcher.Constraint("Symmetric", 5, 2, 10, 2, -1, 1),
    Sketcher.Constraint("Symmetric", 3, 2, 11, 2, -1, 1),
    Sketcher.Constraint("Symmetric", 0, 2, 3, 2, -2),
    Sketcher.Constraint("Symmetric", 2, 2, 4, 2, -2),
    Sketcher.Constraint("Symmetric", 1, 2, 5, 2, -2),
    Sketcher.Constraint("Perpendicular", 0, 1),
    Sketcher.Constraint("Angle", 0, Q("-140 deg")),
    Sketcher.Constraint("Angle", 2, Q("-10 deg")),
    Sketcher.Constraint("Distance", 2, Q("7.94212 mm")),
    Sketcher.Constraint("DistanceY", 0, 2, -1, 1, Q("36.575781 mm")),
    Sketcher.Constraint("DistanceX", 0, 2, -1, 1, Q("51.367937 mm")),
])
pad15 = body.newObject("PartDesign::Pad", "Pad014")
pad15.Profile = sketch17
pad15.Length = 1.2

doc.recompute()
